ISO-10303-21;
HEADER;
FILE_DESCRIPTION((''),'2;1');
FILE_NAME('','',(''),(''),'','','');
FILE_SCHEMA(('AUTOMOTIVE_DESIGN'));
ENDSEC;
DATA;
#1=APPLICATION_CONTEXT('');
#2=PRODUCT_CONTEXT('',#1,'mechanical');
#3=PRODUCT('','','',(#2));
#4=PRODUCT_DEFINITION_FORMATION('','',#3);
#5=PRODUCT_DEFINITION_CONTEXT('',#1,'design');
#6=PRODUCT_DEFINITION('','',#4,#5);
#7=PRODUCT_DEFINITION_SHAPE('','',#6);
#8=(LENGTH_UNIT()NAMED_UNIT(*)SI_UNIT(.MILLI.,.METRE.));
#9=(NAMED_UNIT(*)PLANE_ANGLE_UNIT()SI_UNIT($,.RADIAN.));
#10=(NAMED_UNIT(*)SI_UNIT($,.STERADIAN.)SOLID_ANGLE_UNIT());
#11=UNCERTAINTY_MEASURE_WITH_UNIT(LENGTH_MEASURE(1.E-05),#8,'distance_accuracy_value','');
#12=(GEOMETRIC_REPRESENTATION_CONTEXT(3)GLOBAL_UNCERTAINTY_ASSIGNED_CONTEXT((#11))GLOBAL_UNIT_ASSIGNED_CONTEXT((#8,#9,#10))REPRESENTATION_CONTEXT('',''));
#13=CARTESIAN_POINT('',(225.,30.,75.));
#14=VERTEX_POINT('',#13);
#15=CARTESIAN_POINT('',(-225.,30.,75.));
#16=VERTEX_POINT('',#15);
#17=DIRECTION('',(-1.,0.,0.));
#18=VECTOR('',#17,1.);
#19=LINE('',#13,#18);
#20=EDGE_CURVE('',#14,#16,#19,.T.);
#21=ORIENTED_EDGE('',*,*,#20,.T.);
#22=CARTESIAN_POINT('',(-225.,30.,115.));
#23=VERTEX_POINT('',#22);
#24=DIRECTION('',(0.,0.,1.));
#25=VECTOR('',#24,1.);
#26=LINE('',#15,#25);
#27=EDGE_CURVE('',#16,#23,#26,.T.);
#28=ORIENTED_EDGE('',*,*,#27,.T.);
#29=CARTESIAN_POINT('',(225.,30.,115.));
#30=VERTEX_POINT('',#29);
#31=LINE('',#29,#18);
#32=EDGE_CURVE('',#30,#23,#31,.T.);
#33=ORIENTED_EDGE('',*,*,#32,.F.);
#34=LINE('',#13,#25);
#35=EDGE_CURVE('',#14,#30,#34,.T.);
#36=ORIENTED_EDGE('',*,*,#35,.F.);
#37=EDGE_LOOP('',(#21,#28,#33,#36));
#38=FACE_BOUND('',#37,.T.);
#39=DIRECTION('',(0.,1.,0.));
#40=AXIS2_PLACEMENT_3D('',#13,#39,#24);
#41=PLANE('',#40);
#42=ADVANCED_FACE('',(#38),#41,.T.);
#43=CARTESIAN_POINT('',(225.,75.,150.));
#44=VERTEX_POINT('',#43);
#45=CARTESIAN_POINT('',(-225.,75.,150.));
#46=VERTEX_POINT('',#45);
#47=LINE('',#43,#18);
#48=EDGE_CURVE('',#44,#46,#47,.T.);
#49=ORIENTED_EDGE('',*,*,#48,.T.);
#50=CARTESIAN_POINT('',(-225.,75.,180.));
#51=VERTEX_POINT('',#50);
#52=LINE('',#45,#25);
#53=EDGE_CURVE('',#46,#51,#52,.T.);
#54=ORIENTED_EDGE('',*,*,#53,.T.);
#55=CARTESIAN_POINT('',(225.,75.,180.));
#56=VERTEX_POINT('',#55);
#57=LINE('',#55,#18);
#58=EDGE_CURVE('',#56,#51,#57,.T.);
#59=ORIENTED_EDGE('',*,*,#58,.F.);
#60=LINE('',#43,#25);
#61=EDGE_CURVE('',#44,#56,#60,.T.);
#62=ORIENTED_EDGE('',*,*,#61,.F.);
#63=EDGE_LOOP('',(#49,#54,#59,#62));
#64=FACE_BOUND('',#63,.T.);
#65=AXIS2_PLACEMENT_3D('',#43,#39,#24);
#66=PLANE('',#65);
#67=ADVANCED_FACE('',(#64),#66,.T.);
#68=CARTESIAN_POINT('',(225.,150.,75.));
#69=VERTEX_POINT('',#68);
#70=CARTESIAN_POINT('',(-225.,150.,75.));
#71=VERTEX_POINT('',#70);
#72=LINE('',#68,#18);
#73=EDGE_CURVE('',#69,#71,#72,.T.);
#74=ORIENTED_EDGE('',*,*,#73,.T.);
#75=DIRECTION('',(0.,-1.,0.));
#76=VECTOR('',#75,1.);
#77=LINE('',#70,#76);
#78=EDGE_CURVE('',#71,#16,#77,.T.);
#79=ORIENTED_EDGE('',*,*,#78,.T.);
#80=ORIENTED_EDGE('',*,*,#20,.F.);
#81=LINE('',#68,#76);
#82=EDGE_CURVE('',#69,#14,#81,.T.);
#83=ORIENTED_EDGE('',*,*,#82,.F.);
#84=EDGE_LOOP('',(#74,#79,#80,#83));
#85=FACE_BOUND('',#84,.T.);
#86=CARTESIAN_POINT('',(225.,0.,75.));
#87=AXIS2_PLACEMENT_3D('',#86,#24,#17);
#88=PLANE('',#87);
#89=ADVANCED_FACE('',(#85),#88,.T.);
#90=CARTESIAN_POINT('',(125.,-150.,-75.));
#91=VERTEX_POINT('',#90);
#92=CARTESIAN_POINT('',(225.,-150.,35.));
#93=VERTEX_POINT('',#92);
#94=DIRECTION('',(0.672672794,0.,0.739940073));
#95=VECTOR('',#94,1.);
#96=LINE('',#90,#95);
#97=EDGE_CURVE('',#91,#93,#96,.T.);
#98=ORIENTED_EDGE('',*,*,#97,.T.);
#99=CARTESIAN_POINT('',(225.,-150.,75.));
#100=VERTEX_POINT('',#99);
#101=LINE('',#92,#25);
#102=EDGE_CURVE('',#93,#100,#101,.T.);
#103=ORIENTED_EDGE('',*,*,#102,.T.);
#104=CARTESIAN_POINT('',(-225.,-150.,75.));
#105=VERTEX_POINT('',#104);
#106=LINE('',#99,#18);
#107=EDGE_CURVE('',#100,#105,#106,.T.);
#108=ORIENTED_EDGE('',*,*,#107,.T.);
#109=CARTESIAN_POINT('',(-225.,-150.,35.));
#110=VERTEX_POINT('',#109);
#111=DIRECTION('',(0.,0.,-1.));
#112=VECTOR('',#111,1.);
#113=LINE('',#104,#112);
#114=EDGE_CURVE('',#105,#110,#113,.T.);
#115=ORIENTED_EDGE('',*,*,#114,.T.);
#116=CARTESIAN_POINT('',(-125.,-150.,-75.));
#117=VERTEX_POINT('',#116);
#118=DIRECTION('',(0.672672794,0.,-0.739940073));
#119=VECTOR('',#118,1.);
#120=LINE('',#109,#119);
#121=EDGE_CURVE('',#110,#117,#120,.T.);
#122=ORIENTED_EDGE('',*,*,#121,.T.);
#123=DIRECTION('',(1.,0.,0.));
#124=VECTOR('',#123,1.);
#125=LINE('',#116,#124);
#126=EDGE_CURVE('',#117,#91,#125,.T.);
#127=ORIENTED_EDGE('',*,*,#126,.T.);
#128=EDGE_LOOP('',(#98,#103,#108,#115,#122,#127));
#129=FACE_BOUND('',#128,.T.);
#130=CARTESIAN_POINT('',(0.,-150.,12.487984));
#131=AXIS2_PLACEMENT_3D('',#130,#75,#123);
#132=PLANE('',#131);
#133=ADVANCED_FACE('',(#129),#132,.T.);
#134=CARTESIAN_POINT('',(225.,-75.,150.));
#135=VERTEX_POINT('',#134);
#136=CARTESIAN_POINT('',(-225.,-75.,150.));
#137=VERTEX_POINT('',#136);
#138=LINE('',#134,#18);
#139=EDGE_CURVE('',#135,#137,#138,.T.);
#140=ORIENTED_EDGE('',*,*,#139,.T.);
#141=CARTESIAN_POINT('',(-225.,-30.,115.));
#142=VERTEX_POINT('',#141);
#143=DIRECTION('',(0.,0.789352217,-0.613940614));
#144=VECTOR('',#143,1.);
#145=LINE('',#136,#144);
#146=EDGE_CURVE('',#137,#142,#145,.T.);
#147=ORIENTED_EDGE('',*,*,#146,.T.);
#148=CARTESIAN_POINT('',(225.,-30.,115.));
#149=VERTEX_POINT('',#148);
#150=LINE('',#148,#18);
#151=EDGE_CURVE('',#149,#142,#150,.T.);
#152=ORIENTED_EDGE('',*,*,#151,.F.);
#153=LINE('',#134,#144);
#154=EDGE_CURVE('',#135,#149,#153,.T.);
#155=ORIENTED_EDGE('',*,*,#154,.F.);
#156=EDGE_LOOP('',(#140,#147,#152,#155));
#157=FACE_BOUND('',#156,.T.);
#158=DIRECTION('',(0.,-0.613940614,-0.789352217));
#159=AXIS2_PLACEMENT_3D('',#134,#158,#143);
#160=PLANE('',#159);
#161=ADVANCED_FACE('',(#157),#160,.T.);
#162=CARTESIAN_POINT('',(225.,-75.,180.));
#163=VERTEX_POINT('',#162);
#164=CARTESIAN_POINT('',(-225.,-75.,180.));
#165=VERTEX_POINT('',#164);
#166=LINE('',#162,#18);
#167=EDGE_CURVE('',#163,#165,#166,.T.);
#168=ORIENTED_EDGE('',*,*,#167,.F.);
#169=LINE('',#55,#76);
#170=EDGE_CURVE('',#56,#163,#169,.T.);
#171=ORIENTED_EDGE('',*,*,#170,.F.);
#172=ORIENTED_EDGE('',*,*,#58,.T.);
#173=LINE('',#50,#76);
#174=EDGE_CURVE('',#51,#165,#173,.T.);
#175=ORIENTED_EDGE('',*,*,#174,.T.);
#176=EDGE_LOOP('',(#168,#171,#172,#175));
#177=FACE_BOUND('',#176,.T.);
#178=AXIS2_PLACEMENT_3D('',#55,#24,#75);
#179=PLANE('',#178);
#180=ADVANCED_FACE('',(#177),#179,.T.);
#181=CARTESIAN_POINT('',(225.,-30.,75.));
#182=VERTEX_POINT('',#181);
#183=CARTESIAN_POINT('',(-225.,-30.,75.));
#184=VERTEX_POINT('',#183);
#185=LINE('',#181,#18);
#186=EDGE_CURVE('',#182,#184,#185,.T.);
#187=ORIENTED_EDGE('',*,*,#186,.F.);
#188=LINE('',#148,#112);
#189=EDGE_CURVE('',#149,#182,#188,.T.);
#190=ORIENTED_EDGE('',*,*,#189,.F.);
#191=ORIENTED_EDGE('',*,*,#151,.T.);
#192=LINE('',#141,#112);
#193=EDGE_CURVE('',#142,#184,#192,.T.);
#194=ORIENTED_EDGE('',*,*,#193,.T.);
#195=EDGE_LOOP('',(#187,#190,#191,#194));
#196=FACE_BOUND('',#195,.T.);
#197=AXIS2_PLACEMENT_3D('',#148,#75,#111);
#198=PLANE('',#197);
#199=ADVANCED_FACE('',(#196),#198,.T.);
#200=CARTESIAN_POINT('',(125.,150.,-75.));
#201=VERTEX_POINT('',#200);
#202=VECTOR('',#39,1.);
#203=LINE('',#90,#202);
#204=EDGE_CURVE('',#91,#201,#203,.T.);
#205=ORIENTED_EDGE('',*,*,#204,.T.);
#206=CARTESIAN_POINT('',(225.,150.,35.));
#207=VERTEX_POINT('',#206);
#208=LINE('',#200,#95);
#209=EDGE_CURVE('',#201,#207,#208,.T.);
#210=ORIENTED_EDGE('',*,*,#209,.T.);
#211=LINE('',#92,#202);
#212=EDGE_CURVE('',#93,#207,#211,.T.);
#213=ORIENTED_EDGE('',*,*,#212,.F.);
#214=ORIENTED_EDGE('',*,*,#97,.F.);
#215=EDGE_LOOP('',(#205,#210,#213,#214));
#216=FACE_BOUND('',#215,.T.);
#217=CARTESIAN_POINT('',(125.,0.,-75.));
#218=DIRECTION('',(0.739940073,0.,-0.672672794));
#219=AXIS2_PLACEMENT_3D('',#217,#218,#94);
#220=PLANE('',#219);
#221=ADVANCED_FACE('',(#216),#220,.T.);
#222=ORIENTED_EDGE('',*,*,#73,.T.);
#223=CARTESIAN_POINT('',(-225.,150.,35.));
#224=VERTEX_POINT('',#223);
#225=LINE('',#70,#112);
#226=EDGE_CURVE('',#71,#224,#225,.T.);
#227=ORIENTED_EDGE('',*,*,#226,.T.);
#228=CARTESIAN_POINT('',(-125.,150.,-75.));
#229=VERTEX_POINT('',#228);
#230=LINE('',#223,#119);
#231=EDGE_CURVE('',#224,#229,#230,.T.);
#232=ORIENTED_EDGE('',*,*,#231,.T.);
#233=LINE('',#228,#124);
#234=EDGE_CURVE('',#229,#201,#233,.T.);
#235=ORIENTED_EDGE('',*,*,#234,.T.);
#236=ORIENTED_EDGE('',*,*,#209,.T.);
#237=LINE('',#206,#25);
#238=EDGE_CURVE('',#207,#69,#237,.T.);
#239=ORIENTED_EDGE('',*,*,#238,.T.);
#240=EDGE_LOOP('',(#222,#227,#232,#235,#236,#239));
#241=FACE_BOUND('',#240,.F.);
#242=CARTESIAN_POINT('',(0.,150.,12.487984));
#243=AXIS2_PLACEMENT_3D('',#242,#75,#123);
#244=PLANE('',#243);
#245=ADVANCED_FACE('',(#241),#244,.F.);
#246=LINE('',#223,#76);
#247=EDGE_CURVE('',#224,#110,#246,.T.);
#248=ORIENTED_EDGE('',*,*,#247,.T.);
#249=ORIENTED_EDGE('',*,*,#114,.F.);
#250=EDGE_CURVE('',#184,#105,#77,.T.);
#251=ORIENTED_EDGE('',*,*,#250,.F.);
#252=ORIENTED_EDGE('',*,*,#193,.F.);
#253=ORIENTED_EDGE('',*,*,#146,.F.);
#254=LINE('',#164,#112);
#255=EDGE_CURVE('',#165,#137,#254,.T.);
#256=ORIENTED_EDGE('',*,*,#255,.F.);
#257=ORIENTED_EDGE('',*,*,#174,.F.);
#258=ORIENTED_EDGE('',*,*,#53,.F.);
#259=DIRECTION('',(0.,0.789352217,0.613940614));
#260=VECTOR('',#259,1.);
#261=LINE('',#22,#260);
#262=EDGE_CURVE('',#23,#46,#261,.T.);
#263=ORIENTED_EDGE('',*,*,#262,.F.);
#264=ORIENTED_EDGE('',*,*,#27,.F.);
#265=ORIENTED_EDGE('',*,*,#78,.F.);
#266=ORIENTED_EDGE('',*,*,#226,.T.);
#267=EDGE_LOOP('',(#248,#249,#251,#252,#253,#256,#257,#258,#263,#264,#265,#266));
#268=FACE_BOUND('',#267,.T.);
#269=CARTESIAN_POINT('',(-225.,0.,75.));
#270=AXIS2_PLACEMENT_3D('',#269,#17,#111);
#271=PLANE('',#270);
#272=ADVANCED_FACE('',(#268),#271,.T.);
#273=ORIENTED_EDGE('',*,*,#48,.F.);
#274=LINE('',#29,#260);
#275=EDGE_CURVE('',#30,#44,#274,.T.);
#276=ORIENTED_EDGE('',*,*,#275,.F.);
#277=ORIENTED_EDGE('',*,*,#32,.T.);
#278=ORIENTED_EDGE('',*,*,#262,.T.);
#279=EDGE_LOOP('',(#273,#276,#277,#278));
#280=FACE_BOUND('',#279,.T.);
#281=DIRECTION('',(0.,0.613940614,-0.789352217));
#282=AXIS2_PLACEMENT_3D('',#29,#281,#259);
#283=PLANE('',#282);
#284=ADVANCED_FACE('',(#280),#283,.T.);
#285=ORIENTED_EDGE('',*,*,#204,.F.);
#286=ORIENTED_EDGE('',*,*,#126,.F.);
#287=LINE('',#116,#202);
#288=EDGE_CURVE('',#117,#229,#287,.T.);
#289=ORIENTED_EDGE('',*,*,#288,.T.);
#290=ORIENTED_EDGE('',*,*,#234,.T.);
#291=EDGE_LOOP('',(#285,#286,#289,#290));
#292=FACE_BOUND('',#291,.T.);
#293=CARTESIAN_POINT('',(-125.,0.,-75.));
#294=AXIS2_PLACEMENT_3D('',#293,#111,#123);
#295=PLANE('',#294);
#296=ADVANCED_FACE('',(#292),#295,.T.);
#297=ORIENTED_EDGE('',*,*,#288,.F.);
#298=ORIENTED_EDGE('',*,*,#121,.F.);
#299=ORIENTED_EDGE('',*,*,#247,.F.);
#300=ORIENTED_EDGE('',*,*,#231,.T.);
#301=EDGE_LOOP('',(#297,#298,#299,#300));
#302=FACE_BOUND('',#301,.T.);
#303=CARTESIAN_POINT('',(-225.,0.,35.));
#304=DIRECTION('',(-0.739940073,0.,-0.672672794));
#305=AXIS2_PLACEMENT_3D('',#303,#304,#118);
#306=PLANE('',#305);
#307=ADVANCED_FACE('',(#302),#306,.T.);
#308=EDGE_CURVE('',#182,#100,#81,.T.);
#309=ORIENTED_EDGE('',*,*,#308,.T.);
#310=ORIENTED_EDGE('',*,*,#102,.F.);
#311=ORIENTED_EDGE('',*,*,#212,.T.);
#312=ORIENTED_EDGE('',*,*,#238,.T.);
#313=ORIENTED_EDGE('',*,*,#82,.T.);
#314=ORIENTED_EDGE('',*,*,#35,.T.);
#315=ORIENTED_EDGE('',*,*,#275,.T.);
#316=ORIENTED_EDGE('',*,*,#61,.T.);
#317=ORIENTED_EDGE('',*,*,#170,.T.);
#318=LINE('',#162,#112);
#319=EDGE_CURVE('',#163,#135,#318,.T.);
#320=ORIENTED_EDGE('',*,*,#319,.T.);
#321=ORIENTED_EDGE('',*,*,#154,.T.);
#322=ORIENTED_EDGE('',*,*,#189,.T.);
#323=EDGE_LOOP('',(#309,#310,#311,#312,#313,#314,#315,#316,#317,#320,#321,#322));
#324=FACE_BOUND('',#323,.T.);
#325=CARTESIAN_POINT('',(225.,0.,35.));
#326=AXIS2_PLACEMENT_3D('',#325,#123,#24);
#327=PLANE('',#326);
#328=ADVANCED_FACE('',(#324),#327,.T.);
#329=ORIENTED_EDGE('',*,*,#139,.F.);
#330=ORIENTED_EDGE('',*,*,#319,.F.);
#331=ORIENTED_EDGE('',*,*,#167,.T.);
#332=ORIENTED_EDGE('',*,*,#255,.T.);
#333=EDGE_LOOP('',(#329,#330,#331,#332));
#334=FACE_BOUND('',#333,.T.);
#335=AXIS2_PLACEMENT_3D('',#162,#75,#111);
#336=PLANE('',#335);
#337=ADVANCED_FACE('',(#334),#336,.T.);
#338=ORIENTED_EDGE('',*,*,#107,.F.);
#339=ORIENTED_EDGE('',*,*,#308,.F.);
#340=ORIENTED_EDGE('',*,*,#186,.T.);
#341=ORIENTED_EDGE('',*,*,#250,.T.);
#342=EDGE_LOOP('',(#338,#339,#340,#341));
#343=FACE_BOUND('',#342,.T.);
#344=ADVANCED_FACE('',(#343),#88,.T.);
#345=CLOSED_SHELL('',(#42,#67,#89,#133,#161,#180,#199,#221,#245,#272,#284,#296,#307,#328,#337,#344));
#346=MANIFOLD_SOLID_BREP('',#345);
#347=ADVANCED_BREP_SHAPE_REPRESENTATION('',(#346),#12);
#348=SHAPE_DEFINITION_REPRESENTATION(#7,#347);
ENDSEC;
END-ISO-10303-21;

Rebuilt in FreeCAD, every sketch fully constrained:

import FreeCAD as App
import Part
import Sketcher

doc = App.newDocument("Part")
params = doc.addObject("Spreadsheet::Sheet", "Params")
for row, (alias, value) in enumerate([
    ("sketch1_width", "450 mm"),
    ("sketch1_width2", "250 mm"),
    ("sketch1_height", "40 mm"),
    ("pad1_length", "300 mm"),
    ("sketch2_width", "60 mm"),
    ("sketch2_width2", "150 mm"),
    ("sketch2_height", "40 mm"),
    ("sketch2_height2", "30 mm"),
    ("pad2_length", "450 mm"),
], start=1):
    params.set(f"A{row}", alias)
    params.set(f"B{row}", "=" + value)
    params.setAlias(f"B{row}", alias)

body = doc.addObject("PartDesign::Body", "Body")

# Sketch on XZ plane
sketch1 = body.newObject("Sketcher::SketchObject", "Sketch")
sketch1.AttachmentSupport = (doc.getObject("XZ_Plane"), [""])
sketch1.MapMode = "FlatFace"
sketch1.addGeometry([
    Part.LineSegment(App.Vector(225, 35, 0), App.Vector(225, 75, 0)),  # 0
    Part.LineSegment(App.Vector(225, 75, 0), App.Vector(-225, 75, 0)),  # 1
    Part.LineSegment(App.Vector(-225, 75, 0), App.Vector(-225, 35, 0)),  # 2
    Part.LineSegment(App.Vector(-225, 35, 0), App.Vector(-125, -75, 0)),  # 3
    Part.LineSegment(App.Vector(-125, -75, 0), App.Vector(125, -75, 0)),  # 4
    Part.LineSegment(App.Vector(125, -75, 0), App.Vector(225, 35, 0)),  # 5
], False)
sketch1.addConstraint([
    Sketcher.Constraint("Coincident", 0, 2, 1, 1),
    Sketcher.Constraint("Coincident", 1, 2, 2, 1),
    Sketcher.Constraint("Coincident", 2, 2, 3, 1),
    Sketcher.Constraint("Coincident", 3, 2, 4, 1),
    Sketcher.Constraint("Coincident", 4, 2, 5, 1),
    Sketcher.Constraint("Coincident", 5, 2, 0, 1),
    Sketcher.Constraint("Vertical", 0),
    Sketcher.Constraint("Horizontal", 1),
    Sketcher.Constraint("Vertical", 2),
    Sketcher.Constraint("Horizontal", 4),
    Sketcher.Constraint("Symmetric", 2, 2, 5, 2, -2),
    Sketcher.Constraint("Equal", 3, 5),
    Sketcher.Constraint("DistanceX", 1, 2, 1, 1, 450.0),
    Sketcher.Constraint("DistanceX", 4, 1, 4, 2, 250.0),
    Sketcher.Constraint("DistanceY", 0, 1, 0, 2, 40.0),
    Sketcher.Constraint("DistanceY", -1, 1, 0, 2, 75.0),
    Sketcher.Constraint("DistanceY", 3, 2, -1, 1, 75.0),
])
sketch1.setExpression("Constraints[12]", "Params.sketch1_width")
sketch1.setExpression("Constraints[13]", "Params.sketch1_width2")
sketch1.setExpression("Constraints[14]", "Params.sketch1_height")
pad1 = body.newObject("PartDesign::Pad", "Pad")
pad1.Profile = sketch1
pad1.setExpression("Length", "Params.pad1_length")
pad1.Midplane = True

# Sketch on YZ plane
sketch2 = body.newObject("Sketcher::SketchObject", "Sketch001")
sketch2.AttachmentSupport = (doc.getObject("YZ_Plane"), [""])
sketch2.MapMode = "FlatFace"
sketch2.AttachmentOffset = App.Placement(App.Vector(0, 0, 225), App.Rotation())
sketch2.addGeometry([
    Part.LineSegment(App.Vector(-30, 115, 0), App.Vector(-30, 75, 0)),  # 0
    Part.LineSegment(App.Vector(-30, 75, 0), App.Vector(30, 75, 0)),  # 1
    Part.LineSegment(App.Vector(30, 75, 0), App.Vector(30, 115, 0)),  # 2
    Part.LineSegment(App.Vector(30, 115, 0), App.Vector(75, 150, 0)),  # 3
    Part.LineSegment(App.Vector(75, 150, 0), App.Vector(75, 180, 0)),  # 4
    Part.LineSegment(App.Vector(75, 180, 0), App.Vector(-75, 180, 0)),  # 5
    Part.LineSegment(App.Vector(-75, 180, 0), App.Vector(-75, 150, 0)),  # 6
    Part.LineSegment(App.Vector(-75, 150, 0), App.Vector(-30, 115, 0)),  # 7
], False)
sketch2.addConstraint([
    Sketcher.Constraint("Coincident", 0, 2, 1, 1),
    Sketcher.Constraint("Coincident", 1, 2, 2, 1),
    Sketcher.Constraint("Coincident", 2, 2, 3, 1),
    Sketcher.Constraint("Coincident", 3, 2, 4, 1),
    Sketcher.Constraint("Coincident", 4, 2, 5, 1),
    Sketcher.Constraint("Coincident", 5, 2, 6, 1),
    Sketcher.Constraint("Coincident", 6, 2, 7, 1),
    Sketcher.Constraint("Coincident", 7, 2, 0, 1),
    Sketcher.Constraint("Vertical", 0),
    Sketcher.Constraint("Horizontal", 1),
    Sketcher.Constraint("Vertical", 2),
    Sketcher.Constraint("Vertical", 4),
    Sketcher.Constraint("Horizontal", 5),
    Sketcher.Constraint("Vertical", 6),
    Sketcher.Constraint("Symmetric", 3, 2, 6, 2, -2),
    Sketcher.Constraint("Symmetric", 2, 2, 7, 2, -2),
    Sketcher.Constraint("DistanceX", 1, 1, 1, 2, 60.0),
    Sketcher.Constraint("DistanceX", 5, 2, 5, 1, 150.0),
    Sketcher.Constraint("DistanceY", 0, 2, 0, 1, 40.0),
    Sketcher.Constraint("DistanceY", 4, 1, 4, 2, 30.0),
    Sketcher.Constraint("DistanceY", -1, 1, 0, 2, 75.0),
    Sketcher.Constraint("DistanceY", -1, 1, 3, 2, 150.0),
])
sketch2.setExpression("Constraints[16]", "Params.sketch2_width")
sketch2.setExpression("Constraints[17]", "Params.sketch2_width2")
sketch2.setExpression("Constraints[18]", "Params.sketch2_height")
sketch2.setExpression("Constraints[19]", "Params.sketch2_height2")
pad2 = body.newObject("PartDesign::Pad", "Pad001")
pad2.Profile = sketch2
pad2.setExpression("Length", "Params.pad2_length")
pad2.Reversed = True

doc.recompute()
